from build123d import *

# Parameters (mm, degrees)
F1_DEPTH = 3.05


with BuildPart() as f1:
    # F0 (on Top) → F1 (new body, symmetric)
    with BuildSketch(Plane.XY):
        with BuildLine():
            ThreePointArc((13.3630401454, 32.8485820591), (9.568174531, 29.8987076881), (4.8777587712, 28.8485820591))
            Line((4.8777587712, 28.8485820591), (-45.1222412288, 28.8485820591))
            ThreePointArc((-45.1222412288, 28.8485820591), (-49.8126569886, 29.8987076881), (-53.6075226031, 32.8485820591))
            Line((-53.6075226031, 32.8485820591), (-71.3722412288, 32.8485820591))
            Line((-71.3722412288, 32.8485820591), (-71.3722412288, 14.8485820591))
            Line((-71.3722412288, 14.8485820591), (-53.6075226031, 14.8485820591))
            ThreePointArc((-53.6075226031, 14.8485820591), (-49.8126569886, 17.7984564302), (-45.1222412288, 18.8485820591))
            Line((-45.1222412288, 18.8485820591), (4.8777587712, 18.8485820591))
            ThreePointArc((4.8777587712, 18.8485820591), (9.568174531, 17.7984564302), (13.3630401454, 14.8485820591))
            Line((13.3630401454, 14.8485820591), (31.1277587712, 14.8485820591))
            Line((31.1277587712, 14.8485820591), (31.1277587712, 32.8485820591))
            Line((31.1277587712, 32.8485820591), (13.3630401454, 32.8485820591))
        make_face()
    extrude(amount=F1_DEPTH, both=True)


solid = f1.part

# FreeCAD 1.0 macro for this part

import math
import FreeCAD as App
import Part
import Sketcher
from FreeCAD import Vector
Q = App.Units.Quantity

doc = App.newDocument("Part")
params = doc.addObject("Spreadsheet::Sheet", "Params")
for row, (alias, value) in enumerate([
    ("sketch1_radius", "11 mm"),
    ("sketch1_width", "50 mm"),
    ("sketch1_height", "18 mm"),
    ("pad1_length", "6.1 mm"),
], start=1):
    params.set(f"A{row}", alias)
    params.set(f"B{row}", "=" + value)
    params.setAlias(f"B{row}", alias)

body = doc.addObject("PartDesign::Body", "Body")

# Sketch on XY plane
sketch1 = body.newObject("Sketcher::SketchObject", "Sketch")
sketch1.AttachmentSupport = (doc.getObject("XY_Plane"), [""])
sketch1.MapMode = "FlatFace"
sketch1.addGeometry([
    Part.ArcOfCircle(Part.Circle(Vector(5, 40, 0), Vector(0, 0, 1), 11), math.radians(-90), math.radians(-40)),  # 0
    Part.LineSegment(Vector(5, 29, 0), Vector(-45, 29, 0)),  # 1
    Part.ArcOfCircle(Part.Circle(Vector(-45, 40, 0), Vector(0, 0, 1), 11), math.radians(-140), math.radians(-90)),  # 2
    Part.LineSegment(Vector(-54, 33, 0), Vector(-71, 33, 0)),  # 3
    Part.LineSegment(Vector(-71, 33, 0), Vector(-71, 15, 0)),  # 4
    Part.LineSegment(Vector(-71, 15, 0), Vector(-54, 15, 0)),  # 5
    Part.ArcOfCircle(Part.Circle(Vector(-45, 8, 0), Vector(0, 0, 1), 11), math.radians(90), math.radians(140)),  # 6
    Part.LineSegment(Vector(-45, 19, 0), Vector(5, 19, 0)),  # 7
    Part.ArcOfCircle(Part.Circle(Vector(5, 8, 0), Vector(0, 0, 1), 11), math.radians(40), math.radians(90)),  # 8
    Part.LineSegment(Vector(13, 15, 0), Vector(31, 15, 0)),  # 9
    Part.LineSegment(Vector(31, 15, 0), Vector(31, 33, 0)),  # 10
    Part.LineSegment(Vector(31, 33, 0), Vector(13, 33, 0)),  # 11
], False)
sketch1.addConstraint([
    Sketcher.Constraint("Tangent", 0, 1, 1, 1),
    Sketcher.Constraint("Tangent", 1, 2, 2, 2),
    Sketcher.Constraint("Coincident", 2, 1, 3, 1),
    Sketcher.Constraint("Coincident", 3, 2, 4, 1),
    Sketcher.Constraint("Coincident", 4, 2, 5, 1),
    Sketcher.Constraint("Coincident", 5, 2, 6, 2),
    Sketcher.Constraint("Tangent", 6, 1, 7, 1),
    Sketcher.Constraint("Tangent", 7, 2, 8, 2),
    Sketcher.Constraint("Coincident", 8, 1, 9, 1),
    Sketcher.Constraint("Coincident", 9, 2, 10, 1),
    Sketcher.Constraint("Coincident", 10, 2, 11, 1),
    Sketcher.Constraint("Coincident", 11, 2, 0, 2),
    Sketcher.Constraint("Horizontal", 1),
    Sketcher.Constraint("Horizontal", 3),
    Sketcher.Constraint("Vertical", 4),
    Sketcher.Constraint("Horizontal", 5),
    Sketcher.Constraint("Horizontal", 7),
    Sketcher.Constraint("Horizontal", 9),
    Sketcher.Constraint("Vertical", 10),
    Sketcher.Constraint("Horizontal", 11),
    Sketcher.Constraint("Equal", 0, 2),
    Sketcher.Constraint("Equal", 2, 6),
    Sketcher.Constraint("Equal", 6, 8),
    Sketcher.Constraint("Horizontal", 5, 2, 8, 1),
    Sketcher.Constraint("Horizontal", 3, 2, 10, 2),
    Sketcher.Constraint("Vertical", 2, 3, 6, 3),
    Sketcher.Constraint("Vertical", 0, 3, 8, 3),
    Sketcher.Constraint("Vertical", 2, 1, 5, 2),
    Sketcher.Constraint("Equal", 5, 9),
    Sketcher.Constraint("Radius", 0, Q("11 mm")),
    Sketcher.Constraint("DistanceX", 1, 2, 1, 1, Q("50 mm")),
    Sketcher.Constraint("DistanceY", 4, 2, 4, 1, Q("18 mm")),
    Sketcher.Constraint("DistanceY", 6, 3, 2, 3, Q("32 mm")),
    Sketcher.Constraint("DistanceX", 3, 2, 1, 2, Q("26.25 mm")),
    Sketcher.Constraint("DistanceX", -1, 1, 0, 3, Q("4.877759 mm")),
    Sketcher.Constraint("DistanceY", -1, 1, 0, 3, Q("39.848582 mm")),
])
sketch1.setExpression("Constraints[29]", "Params.sketch1_radius")
sketch1.setExpression("Constraints[30]", "Params.sketch1_width")
sketch1.setExpression("Constraints[31]", "Params.sketch1_height")
pad1 = body.newObject("PartDesign::Pad", "Pad")
pad1.Profile = sketch1
pad1.setExpression("Length", "Params.pad1_length")
pad1.Midplane = True

doc.recompute()
